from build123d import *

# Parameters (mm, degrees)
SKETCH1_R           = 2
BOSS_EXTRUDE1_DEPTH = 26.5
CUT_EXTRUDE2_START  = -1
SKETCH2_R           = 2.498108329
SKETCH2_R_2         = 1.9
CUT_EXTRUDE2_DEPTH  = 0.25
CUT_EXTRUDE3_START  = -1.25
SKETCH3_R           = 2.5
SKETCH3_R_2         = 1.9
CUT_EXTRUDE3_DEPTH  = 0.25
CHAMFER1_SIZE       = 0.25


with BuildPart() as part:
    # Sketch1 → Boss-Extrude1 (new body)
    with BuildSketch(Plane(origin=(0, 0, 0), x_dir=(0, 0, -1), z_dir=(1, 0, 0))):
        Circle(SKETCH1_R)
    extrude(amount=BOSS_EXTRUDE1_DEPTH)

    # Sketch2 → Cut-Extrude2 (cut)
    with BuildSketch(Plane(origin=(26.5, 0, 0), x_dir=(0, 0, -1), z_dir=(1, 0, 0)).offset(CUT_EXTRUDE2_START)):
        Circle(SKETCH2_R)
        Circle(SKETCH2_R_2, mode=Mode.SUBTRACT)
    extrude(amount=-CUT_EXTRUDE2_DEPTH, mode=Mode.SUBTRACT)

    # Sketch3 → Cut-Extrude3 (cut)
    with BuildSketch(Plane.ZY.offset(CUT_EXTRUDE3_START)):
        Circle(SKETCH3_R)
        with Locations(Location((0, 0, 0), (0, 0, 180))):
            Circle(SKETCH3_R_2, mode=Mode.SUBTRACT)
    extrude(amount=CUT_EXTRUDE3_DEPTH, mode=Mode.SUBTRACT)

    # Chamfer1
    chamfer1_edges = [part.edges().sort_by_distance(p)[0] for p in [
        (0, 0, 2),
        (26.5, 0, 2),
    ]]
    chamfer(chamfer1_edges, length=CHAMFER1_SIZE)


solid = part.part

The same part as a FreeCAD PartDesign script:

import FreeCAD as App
import Part
import Sketcher
from FreeCAD import Vector
Q = App.Units.Quantity


def edges_at(feature, points):
    """Names of the edges that pass closest to the given points."""
    edges = feature.Shape.Edges
    near = lambda p: min(range(len(edges)), key=lambda i: edges[i].distToShape(Part.Vertex(*p))[0])
    return sorted({f"Edge{near(p) + 1}" for p in points})

doc = App.newDocument("Part")
body = doc.addObject("PartDesign::Body", "Body")

# Sketch on YZ plane
sketch1 = body.newObject("Sketcher::SketchObject", "Sketch")
sketch1.AttachmentSupport = (doc.getObject("YZ_Plane"), [""])
sketch1.MapMode = "FlatFace"
sketch1.addGeometry(Part.Circle(Vector(0, 0, 0), Vector(0, 0, 1), 2), False)
sketch1.addConstraint(Sketcher.Constraint("Coincident", 0, 3, -1, 1))
sketch1.addConstraint(Sketcher.Constraint("Diameter", 0, Q("4 mm")))
pad1 = body.newObject("PartDesign::Pad", "Pad")
pad1.Profile = sketch1
pad1.Length = 26.5

# Sketch on YZ plane
sketch2 = body.newObject("Sketcher::SketchObject", "Sketch001")
sketch2.AttachmentSupport = (doc.getObject("YZ_Plane"), [""])
sketch2.MapMode = "FlatFace"
sketch2.AttachmentOffset = App.Placement(Vector(0, 0, 25.5), App.Rotation())
sketch2.addGeometry(Part.Circle(Vector(0, 0, 0), Vector(0, 0, 1), 2.5), False)
sketch2.addGeometry(Part.Circle(Vector(0, 0, 0), Vector(0, 0, 1), 1.9), False)
sketch2.addConstraint(Sketcher.Constraint("Coincident", 0, 3, -1, 1))
sketch2.addConstraint(Sketcher.Constraint("Coincident", 1, 3, -1, 1))
sketch2.addConstraint(Sketcher.Constraint("Diameter", 1, Q("3.8 mm")))
sketch2.addConstraint(Sketcher.Constraint("Diameter", 0, Q("4.996217 mm")))
pocket1 = body.newObject("PartDesign::Pocket", "Pocket")
pocket1.Profile = sketch2
pocket1.Length = 0.25

# Sketch on YZ plane
sketch3 = body.newObject("Sketcher::SketchObject", "Sketch002")
sketch3.AttachmentSupport = (doc.getObject("YZ_Plane"), [""])
sketch3.MapMode = "FlatFace"
sketch3.AttachmentOffset = App.Placement(Vector(0, 0, 1.25), App.Rotation())
sketch3.addGeometry(Part.Circle(Vector(0, 0, 0), Vector(0, 0, 1), 2.5), False)
sketch3.addGeometry(Part.Circle(Vector(0, 0, 0), Vector(0, 0, 1), 1.9), False)
sketch3.addConstraint(Sketcher.Constraint("Coincident", 0, 3, -1, 1))
sketch3.addConstraint(Sketcher.Constraint("Coincident", 1, 3, -1, 1))
sketch3.addConstraint(Sketcher.Constraint("Diameter", 0, Q("5 mm")))
sketch3.addConstraint(Sketcher.Constraint("Diameter", 1, Q("3.8 mm")))
pocket2 = body.newObject("PartDesign::Pocket", "Pocket001")
pocket2.Profile = sketch3
pocket2.Length = 0.25
doc.recompute()

chamfer = body.newObject("PartDesign::Chamfer", "Chamfer")
chamfer.Base = (pocket2, edges_at(pocket2, [(0, 0, 2), (26.5, 0, 2)]))
chamfer.Size = 0.25

doc.recompute()
